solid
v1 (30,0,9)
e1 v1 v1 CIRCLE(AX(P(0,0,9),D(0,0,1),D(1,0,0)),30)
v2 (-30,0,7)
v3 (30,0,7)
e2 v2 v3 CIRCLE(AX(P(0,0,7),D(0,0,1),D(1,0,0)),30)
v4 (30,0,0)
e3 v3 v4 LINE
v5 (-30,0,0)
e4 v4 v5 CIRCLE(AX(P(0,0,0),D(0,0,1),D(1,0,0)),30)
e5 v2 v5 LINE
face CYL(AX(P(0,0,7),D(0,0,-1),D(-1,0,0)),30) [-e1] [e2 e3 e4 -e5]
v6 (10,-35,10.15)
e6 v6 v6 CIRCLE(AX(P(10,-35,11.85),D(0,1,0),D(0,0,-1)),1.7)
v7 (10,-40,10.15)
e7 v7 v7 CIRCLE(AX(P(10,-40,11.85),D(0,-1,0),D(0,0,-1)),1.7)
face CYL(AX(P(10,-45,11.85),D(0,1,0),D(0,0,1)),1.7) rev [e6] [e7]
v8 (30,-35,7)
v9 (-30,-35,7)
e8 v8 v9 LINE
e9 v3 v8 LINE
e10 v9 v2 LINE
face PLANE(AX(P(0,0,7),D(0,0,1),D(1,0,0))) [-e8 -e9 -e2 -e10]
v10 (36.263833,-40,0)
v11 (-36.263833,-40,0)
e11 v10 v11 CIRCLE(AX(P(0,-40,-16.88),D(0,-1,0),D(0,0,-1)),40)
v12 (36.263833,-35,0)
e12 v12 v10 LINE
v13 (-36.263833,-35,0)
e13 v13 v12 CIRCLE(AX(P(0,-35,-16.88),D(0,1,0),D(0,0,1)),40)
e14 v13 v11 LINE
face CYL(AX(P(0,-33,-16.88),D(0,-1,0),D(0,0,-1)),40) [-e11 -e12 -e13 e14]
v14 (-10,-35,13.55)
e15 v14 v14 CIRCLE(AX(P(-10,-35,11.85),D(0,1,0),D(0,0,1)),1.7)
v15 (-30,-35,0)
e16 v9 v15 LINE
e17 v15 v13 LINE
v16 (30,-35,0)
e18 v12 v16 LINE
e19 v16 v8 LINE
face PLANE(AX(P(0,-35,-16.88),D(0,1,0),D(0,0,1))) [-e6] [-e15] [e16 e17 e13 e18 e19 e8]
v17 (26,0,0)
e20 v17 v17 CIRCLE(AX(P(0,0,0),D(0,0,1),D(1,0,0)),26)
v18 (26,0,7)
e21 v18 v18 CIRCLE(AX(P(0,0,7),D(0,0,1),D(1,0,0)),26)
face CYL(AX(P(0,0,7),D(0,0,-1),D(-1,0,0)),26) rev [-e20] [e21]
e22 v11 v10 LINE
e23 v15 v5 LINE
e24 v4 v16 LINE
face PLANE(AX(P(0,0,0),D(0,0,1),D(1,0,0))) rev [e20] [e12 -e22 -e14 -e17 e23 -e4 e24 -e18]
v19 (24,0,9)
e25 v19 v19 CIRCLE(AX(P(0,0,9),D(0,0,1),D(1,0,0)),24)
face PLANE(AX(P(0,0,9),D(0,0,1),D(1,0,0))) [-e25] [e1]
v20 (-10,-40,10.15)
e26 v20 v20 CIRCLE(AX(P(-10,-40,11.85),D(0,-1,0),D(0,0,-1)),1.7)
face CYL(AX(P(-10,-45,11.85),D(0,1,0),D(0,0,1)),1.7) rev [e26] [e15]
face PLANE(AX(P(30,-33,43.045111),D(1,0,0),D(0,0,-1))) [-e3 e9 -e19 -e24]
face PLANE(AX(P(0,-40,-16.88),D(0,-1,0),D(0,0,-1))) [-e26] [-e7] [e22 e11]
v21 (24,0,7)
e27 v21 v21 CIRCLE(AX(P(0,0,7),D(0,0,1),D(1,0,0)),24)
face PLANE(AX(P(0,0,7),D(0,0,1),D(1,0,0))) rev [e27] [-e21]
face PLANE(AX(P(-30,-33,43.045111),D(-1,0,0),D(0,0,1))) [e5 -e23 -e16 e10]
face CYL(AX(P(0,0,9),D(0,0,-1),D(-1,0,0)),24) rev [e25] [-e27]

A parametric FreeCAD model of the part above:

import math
import FreeCAD as App
import Part
import Sketcher

doc = App.newDocument("Part")
params = doc.addObject("Spreadsheet::Sheet", "Params")
for row, (alias, value) in enumerate([
    ("sketch1_diameter", "52 mm"),
    ("sketch1_radius", "30 mm"),
    ("sketch1_width", "31 mm"),
    ("pad1_length", "7 mm"),
    ("sketch2_radius", "40 mm"),
    ("pad2_length", "5 mm"),
    ("sketch3_diameter", "60 mm"),
    ("sketch3_diameter2", "48 mm"),
    ("pad3_length", "2 mm"),
    ("sketch4_radius", "30 mm"),
    ("sketch4_height", "33 mm"),
    ("sketch4_width", "14.5 mm"),
    ("pad4_length", "7 mm"),
    ("sketch5_radius", "40 mm"),
    ("pad5_length", "2 mm"),
    ("sketch6_radius", "40 mm"),
    ("sketch6_width", "60 mm"),
    ("sketch6_height", "7 mm"),
    ("pocket1_length", "2 mm"),
    ("sketch7_diameter", "3.4 mm"),
    ("pocket2_length", "10 mm"),
], start=1):
    params.set(f"A{row}", alias)
    params.set(f"B{row}", "=" + value)
    params.setAlias(f"B{row}", alias)

body = doc.addObject("PartDesign::Body", "Body")

sketch1 = doc.addObject("Sketcher::SketchObject", "Sketch")
body.addObject(sketch1)
sketch1.AttachmentSupport = (doc.XY_Plane, [""])
sketch1.MapMode = "FlatFace"
sketch1.addGeometry([
    Part.LineSegment(App.Vector(-16, -38, 0), App.Vector(16, -38, 0)),
    Part.LineSegment(App.Vector(16, -38, 0), App.Vector(16, -26, 0)),
    Part.ArcOfCircle(Part.Circle(App.Vector(0, 0, 0), App.Vector(0, 0, 1), 30), math.radians(-59), math.radians(239)),
    Part.LineSegment(App.Vector(-16, -26, 0), App.Vector(-16, -38, 0)),
    Part.Circle(App.Vector(0, 0, 0), App.Vector(0, 0, 1), 26),
], False)
sketch1.addConstraint([
    Sketcher.Constraint("Coincident", 0, 2, 1, 1),
    Sketcher.Constraint("Coincident", 1, 2, 2, 1),
    Sketcher.Constraint("Coincident", 2, 2, 3, 1),
    Sketcher.Constraint("Coincident", 3, 2, 0, 1),
    Sketcher.Constraint("Horizontal", 0),
    Sketcher.Constraint("Vertical", 1),
    Sketcher.Constraint("Vertical", 3),
    Sketcher.Constraint("Coincident", 2, 3, -1, 1),
    Sketcher.Constraint("Coincident", 4, 3, -1, 1),
    Sketcher.Constraint("Horizontal", 1, 2, 2, 2),
    Sketcher.Constraint("Diameter", 4, 52.0),
    Sketcher.Constraint("Radius", 2, 30.0),
    Sketcher.Constraint("DistanceX", 0, 1, 0, 2, 31.0),
    Sketcher.Constraint("DistanceY", 0, 2, -1, 1, 38.0),
])
sketch1.setExpression("Constraints[10]", "Params.sketch1_diameter")
sketch1.setExpression("Constraints[11]", "Params.sketch1_radius")
sketch1.setExpression("Constraints[12]", "Params.sketch1_width")
pad1 = doc.addObject("PartDesign::Pad", "Pad")
body.addObject(pad1)
pad1.Profile = sketch1
pad1.setExpression("Length", "Params.pad1_length")

sketch2 = doc.addObject("Sketcher::SketchObject", "Sketch001")
body.addObject(sketch2)
sketch2.AttachmentSupport = (doc.XZ_Plane, [""])
sketch2.MapMode = "FlatFace"
sketch2.AttachmentOffset = App.Placement(App.Vector(0, 0, 38), App.Rotation())
sketch2.addGeometry([
    Part.LineSegment(App.Vector(-36, 0, 0), App.Vector(36, 0, 0)),
    Part.ArcOfCircle(Part.Circle(App.Vector(0, -17, 0), App.Vector(0, 0, 1), 40), math.radians(25), math.radians(155)),
], False)
sketch2.addConstraint([
    Sketcher.Constraint("Coincident", 0, 1, 1, 2),
    Sketcher.Constraint("Coincident", 1, 1, 0, 2),
    Sketcher.Constraint("Horizontal", 0),
    Sketcher.Constraint("Symmetric", 0, 1, 1, 1, -1, 1),
    Sketcher.Constraint("Radius", 1, 40.0),
    Sketcher.Constraint("DistanceY", 1, 3, -1, 1, 16.88),
])
sketch2.setExpression("Constraints[4]", "Params.sketch2_radius")
pad2 = doc.addObject("PartDesign::Pad", "Pad001")
body.addObject(pad2)
pad2.Profile = sketch2
pad2.setExpression("Length", "Params.pad2_length")
pad2.Reversed = True

sketch3 = doc.addObject("Sketcher::SketchObject", "Sketch002")
body.addObject(sketch3)
sketch3.AttachmentSupport = (doc.XY_Plane, [""])
sketch3.MapMode = "FlatFace"
sketch3.AttachmentOffset = App.Placement(App.Vector(0, 0, 7), App.Rotation())
sketch3.addGeometry([
    Part.Circle(App.Vector(0, 0, 0), App.Vector(0, 0, 1), 30),
    Part.Circle(App.Vector(0, 0, 0), App.Vector(0, 0, 1), 24),
], False)
sketch3.addConstraint([
    Sketcher.Constraint("Coincident", 0, 3, -1, 1),
    Sketcher.Constraint("Coincident", 1, 3, -1, 1),
    Sketcher.Constraint("Diameter", 0, 60.0),
    Sketcher.Constraint("Diameter", 1, 48.0),
])
sketch3.setExpression("Constraints[2]", "Params.sketch3_diameter")
sketch3.setExpression("Constraints[3]", "Params.sketch3_diameter2")
pad3 = doc.addObject("PartDesign::Pad", "Pad002")
body.addObject(pad3)
pad3.Profile = sketch3
pad3.setExpression("Length", "Params.pad3_length")

sketch4 = doc.addObject("Sketcher::SketchObject", "Sketch003")
body.addObject(sketch4)
sketch4.AttachmentSupport = (doc.XY_Plane, [""])
sketch4.MapMode = "FlatFace"
sketch4.addGeometry([
    Part.LineSegment(App.Vector(30, -33, 0), App.Vector(16, -33, 0)),
    Part.LineSegment(App.Vector(16, -33, 0), App.Vector(16, -26, 0)),
    Part.ArcOfCircle(Part.Circle(App.Vector(0, 0, 0), App.Vector(0, 0, 1), 30), math.radians(-59), math.radians(0)),
    Part.LineSegment(App.Vector(30, 0, 0), App.Vector(30, -33, 0)),
    Part.LineSegment(App.Vector(-16, -26, 0), App.Vector(-16, -33, 0)),
    Part.LineSegment(App.Vector(-16, -33, 0), App.Vector(-30, -33, 0)),
    Part.LineSegment(App.Vector(-30, -33, 0), App.Vector(-30, 0, 0)),
    Part.ArcOfCircle(Part.Circle(App.Vector(0, 0, 0), App.Vector(0, 0, 1), 30), math.radians(180), math.radians(239)),
], False)
sketch4.addConstraint([
    Sketcher.Constraint("Coincident", 0, 2, 1, 1),
    Sketcher.Constraint("Coincident", 1, 2, 2, 1),
    Sketcher.Constraint("Tangent", 2, 2, 3, 1),
    Sketcher.Constraint("Coincident", 3, 2, 0, 1),
    Sketcher.Constraint("Coincident", 4, 2, 5, 1),
    Sketcher.Constraint("Coincident", 5, 2, 6, 1),
    Sketcher.Constraint("Tangent", 6, 2, 7, 1),
    Sketcher.Constraint("Coincident", 7, 2, 4, 1),
    Sketcher.Constraint("Horizontal", 0),
    Sketcher.Constraint("Vertical", 1),
    Sketcher.Constraint("Vertical", 3),
    Sketcher.Constraint("Vertical", 4),
    Sketcher.Constraint("Horizontal", 5),
    Sketcher.Constraint("Vertical", 6),
    Sketcher.Constraint("Coincident", 2, 3, -1, 1),
    Sketcher.Constraint("Coincident", 7, 3, -1, 1),
    Sketcher.Constraint("Equal", 2, 7),
    Sketcher.Constraint("Symmetric", 0, 2, 4, 2, -2),
    Sketcher.Constraint("Radius", 2, 30.0),
    Sketcher.Constraint("DistanceY", 3, 2, 3, 1, 33.0),
    Sketcher.Constraint("DistanceX", 0, 2, 0, 1, 14.5),
])
sketch4.setExpression("Constraints[18]", "Params.sketch4_radius")
sketch4.setExpression("Constraints[19]", "Params.sketch4_height")
sketch4.setExpression("Constraints[20]", "Params.sketch4_width")
pad4 = doc.addObject("PartDesign::Pad", "Pad003")
body.addObject(pad4)
pad4.Profile = sketch4
pad4.setExpression("Length", "Params.pad4_length")

sketch5 = doc.addObject("Sketcher::SketchObject", "Sketch004")
body.addObject(sketch5)
sketch5.AttachmentSupport = (doc.XZ_Plane, [""])
sketch5.MapMode = "FlatFace"
sketch5.AttachmentOffset = App.Placement(App.Vector(0, 0, 38), App.Rotation())
sketch5.addGeometry([
    Part.LineSegment(App.Vector(-36, 0, 0), App.Vector(36, 0, 0)),
    Part.ArcOfCircle(Part.Circle(App.Vector(0, -17, 0), App.Vector(0, 0, 1), 40), math.radians(25), math.radians(155)),
], False)
sketch5.addConstraint([
    Sketcher.Constraint("Coincident", 0, 1, 1, 2),
    Sketcher.Constraint("Coincident", 1, 1, 0, 2),
    Sketcher.Constraint("Horizontal", 0),
    Sketcher.Constraint("Symmetric", 0, 1, 1, 1, -1, 1),
    Sketcher.Constraint("Radius", 1, 40.0),
    Sketcher.Constraint("DistanceY", 1, 3, -1, 1, 16.88),
])
sketch5.setExpression("Constraints[4]", "Params.sketch5_radius")
pad5 = doc.addObject("PartDesign::Pad", "Pad004")
body.addObject(pad5)
pad5.Profile = sketch5
pad5.setExpression("Length", "Params.pad5_length")

sketch6 = doc.addObject("Sketcher::SketchObject", "Sketch005")
body.addObject(sketch6)
sketch6.AttachmentSupport = (doc.XZ_Plane, [""])
sketch6.MapMode = "FlatFace"
sketch6.AttachmentOffset = App.Placement(App.Vector(0, 0, 33), App.Rotation())
sketch6.addGeometry([
    Part.LineSegment(App.Vector(30, 7, 0), App.Vector(-30, 7, 0)),
    Part.LineSegment(App.Vector(-30, 7, 0), App.Vector(-30, 0, 0)),
    Part.LineSegment(App.Vector(-30, 0, 0), App.Vector(-36, 0, 0)),
    Part.ArcOfCircle(Part.Circle(App.Vector(0, -17, 0), App.Vector(0, 0, 1), 40), math.radians(25), math.radians(155)),
    Part.LineSegment(App.Vector(36, 0, 0), App.Vector(30, 0, 0)),
    Part.LineSegment(App.Vector(30, 0, 0), App.Vector(30, 7, 0)),
], False)
sketch6.addConstraint([
    Sketcher.Constraint("Coincident", 0, 2, 1, 1),
    Sketcher.Constraint("Coincident", 1, 2, 2, 1),
    Sketcher.Constraint("Coincident", 2, 2, 3, 2),
    Sketcher.Constraint("Coincident", 3, 1, 4, 1),
    Sketcher.Constraint("Coincident", 4, 2, 5, 1),
    Sketcher.Constraint("Coincident", 5, 2, 0, 1),
    Sketcher.Constraint("Horizontal", 0),
    Sketcher.Constraint("Vertical", 1),
    Sketcher.Constraint("Horizontal", 2),
    Sketcher.Constraint("Horizontal", 4),
    Sketcher.Constraint("Vertical", 5),
    Sketcher.Constraint("Symmetric", 2, 2, 3, 1, -1, 1),
    Sketcher.Constraint("Symmetric", 1, 2, 4, 2, -2),
    Sketcher.Constraint("Radius", 3, 40.0),
    Sketcher.Constraint("DistanceX", 0, 2, 0, 1, 60.0),
    Sketcher.Constraint("DistanceY", 1, 2, 1, 1, 7.0),
    Sketcher.Constraint("DistanceY", 3, 3, -1, 1, 16.88),
])
sketch6.setExpression("Constraints[13]", "Params.sketch6_radius")
sketch6.setExpression("Constraints[14]", "Params.sketch6_width")
sketch6.setExpression("Constraints[15]", "Params.sketch6_height")
pocket1 = doc.addObject("PartDesign::Pocket", "Pocket")
body.addObject(pocket1)
pocket1.Profile = sketch6
pocket1.setExpression("Length", "Params.pocket1_length")
pocket1.Reversed = True

sketch7 = doc.addObject("Sketcher::SketchObject", "Sketch006")
body.addObject(sketch7)
sketch7.AttachmentSupport = (doc.XZ_Plane, [""])
sketch7.MapMode = "FlatFace"
sketch7.AttachmentOffset = App.Placement(App.Vector(0, 0, 35), App.Rotation())
sketch7.addGeometry([
    Part.Circle(App.Vector(-10, 11.8, 0), App.Vector(0, 0, 1), 1.7),
    Part.Circle(App.Vector(10, 11.8, 0), App.Vector(0, 0, 1), 1.7),
], False)
sketch7.addConstraint([
    Sketcher.Constraint("Equal", 0, 1),
    Sketcher.Constraint("Symmetric", 0, 3, 1, 3, -2),
    Sketcher.Constraint("Diameter", 0, 3.4),
    Sketcher.Constraint("DistanceX", 0, 3, -1, 1, 10.0),
    Sketcher.Constraint("DistanceY", -1, 1, 0, 3, 11.85),
])
sketch7.setExpression("Constraints[2]", "Params.sketch7_diameter")
pocket2 = doc.addObject("PartDesign::Pocket", "Pocket001")
body.addObject(pocket2)
pocket2.Profile = sketch7
pocket2.setExpression("Length", "Params.pocket2_length")
pocket2.Reversed = True

doc.recompute()
